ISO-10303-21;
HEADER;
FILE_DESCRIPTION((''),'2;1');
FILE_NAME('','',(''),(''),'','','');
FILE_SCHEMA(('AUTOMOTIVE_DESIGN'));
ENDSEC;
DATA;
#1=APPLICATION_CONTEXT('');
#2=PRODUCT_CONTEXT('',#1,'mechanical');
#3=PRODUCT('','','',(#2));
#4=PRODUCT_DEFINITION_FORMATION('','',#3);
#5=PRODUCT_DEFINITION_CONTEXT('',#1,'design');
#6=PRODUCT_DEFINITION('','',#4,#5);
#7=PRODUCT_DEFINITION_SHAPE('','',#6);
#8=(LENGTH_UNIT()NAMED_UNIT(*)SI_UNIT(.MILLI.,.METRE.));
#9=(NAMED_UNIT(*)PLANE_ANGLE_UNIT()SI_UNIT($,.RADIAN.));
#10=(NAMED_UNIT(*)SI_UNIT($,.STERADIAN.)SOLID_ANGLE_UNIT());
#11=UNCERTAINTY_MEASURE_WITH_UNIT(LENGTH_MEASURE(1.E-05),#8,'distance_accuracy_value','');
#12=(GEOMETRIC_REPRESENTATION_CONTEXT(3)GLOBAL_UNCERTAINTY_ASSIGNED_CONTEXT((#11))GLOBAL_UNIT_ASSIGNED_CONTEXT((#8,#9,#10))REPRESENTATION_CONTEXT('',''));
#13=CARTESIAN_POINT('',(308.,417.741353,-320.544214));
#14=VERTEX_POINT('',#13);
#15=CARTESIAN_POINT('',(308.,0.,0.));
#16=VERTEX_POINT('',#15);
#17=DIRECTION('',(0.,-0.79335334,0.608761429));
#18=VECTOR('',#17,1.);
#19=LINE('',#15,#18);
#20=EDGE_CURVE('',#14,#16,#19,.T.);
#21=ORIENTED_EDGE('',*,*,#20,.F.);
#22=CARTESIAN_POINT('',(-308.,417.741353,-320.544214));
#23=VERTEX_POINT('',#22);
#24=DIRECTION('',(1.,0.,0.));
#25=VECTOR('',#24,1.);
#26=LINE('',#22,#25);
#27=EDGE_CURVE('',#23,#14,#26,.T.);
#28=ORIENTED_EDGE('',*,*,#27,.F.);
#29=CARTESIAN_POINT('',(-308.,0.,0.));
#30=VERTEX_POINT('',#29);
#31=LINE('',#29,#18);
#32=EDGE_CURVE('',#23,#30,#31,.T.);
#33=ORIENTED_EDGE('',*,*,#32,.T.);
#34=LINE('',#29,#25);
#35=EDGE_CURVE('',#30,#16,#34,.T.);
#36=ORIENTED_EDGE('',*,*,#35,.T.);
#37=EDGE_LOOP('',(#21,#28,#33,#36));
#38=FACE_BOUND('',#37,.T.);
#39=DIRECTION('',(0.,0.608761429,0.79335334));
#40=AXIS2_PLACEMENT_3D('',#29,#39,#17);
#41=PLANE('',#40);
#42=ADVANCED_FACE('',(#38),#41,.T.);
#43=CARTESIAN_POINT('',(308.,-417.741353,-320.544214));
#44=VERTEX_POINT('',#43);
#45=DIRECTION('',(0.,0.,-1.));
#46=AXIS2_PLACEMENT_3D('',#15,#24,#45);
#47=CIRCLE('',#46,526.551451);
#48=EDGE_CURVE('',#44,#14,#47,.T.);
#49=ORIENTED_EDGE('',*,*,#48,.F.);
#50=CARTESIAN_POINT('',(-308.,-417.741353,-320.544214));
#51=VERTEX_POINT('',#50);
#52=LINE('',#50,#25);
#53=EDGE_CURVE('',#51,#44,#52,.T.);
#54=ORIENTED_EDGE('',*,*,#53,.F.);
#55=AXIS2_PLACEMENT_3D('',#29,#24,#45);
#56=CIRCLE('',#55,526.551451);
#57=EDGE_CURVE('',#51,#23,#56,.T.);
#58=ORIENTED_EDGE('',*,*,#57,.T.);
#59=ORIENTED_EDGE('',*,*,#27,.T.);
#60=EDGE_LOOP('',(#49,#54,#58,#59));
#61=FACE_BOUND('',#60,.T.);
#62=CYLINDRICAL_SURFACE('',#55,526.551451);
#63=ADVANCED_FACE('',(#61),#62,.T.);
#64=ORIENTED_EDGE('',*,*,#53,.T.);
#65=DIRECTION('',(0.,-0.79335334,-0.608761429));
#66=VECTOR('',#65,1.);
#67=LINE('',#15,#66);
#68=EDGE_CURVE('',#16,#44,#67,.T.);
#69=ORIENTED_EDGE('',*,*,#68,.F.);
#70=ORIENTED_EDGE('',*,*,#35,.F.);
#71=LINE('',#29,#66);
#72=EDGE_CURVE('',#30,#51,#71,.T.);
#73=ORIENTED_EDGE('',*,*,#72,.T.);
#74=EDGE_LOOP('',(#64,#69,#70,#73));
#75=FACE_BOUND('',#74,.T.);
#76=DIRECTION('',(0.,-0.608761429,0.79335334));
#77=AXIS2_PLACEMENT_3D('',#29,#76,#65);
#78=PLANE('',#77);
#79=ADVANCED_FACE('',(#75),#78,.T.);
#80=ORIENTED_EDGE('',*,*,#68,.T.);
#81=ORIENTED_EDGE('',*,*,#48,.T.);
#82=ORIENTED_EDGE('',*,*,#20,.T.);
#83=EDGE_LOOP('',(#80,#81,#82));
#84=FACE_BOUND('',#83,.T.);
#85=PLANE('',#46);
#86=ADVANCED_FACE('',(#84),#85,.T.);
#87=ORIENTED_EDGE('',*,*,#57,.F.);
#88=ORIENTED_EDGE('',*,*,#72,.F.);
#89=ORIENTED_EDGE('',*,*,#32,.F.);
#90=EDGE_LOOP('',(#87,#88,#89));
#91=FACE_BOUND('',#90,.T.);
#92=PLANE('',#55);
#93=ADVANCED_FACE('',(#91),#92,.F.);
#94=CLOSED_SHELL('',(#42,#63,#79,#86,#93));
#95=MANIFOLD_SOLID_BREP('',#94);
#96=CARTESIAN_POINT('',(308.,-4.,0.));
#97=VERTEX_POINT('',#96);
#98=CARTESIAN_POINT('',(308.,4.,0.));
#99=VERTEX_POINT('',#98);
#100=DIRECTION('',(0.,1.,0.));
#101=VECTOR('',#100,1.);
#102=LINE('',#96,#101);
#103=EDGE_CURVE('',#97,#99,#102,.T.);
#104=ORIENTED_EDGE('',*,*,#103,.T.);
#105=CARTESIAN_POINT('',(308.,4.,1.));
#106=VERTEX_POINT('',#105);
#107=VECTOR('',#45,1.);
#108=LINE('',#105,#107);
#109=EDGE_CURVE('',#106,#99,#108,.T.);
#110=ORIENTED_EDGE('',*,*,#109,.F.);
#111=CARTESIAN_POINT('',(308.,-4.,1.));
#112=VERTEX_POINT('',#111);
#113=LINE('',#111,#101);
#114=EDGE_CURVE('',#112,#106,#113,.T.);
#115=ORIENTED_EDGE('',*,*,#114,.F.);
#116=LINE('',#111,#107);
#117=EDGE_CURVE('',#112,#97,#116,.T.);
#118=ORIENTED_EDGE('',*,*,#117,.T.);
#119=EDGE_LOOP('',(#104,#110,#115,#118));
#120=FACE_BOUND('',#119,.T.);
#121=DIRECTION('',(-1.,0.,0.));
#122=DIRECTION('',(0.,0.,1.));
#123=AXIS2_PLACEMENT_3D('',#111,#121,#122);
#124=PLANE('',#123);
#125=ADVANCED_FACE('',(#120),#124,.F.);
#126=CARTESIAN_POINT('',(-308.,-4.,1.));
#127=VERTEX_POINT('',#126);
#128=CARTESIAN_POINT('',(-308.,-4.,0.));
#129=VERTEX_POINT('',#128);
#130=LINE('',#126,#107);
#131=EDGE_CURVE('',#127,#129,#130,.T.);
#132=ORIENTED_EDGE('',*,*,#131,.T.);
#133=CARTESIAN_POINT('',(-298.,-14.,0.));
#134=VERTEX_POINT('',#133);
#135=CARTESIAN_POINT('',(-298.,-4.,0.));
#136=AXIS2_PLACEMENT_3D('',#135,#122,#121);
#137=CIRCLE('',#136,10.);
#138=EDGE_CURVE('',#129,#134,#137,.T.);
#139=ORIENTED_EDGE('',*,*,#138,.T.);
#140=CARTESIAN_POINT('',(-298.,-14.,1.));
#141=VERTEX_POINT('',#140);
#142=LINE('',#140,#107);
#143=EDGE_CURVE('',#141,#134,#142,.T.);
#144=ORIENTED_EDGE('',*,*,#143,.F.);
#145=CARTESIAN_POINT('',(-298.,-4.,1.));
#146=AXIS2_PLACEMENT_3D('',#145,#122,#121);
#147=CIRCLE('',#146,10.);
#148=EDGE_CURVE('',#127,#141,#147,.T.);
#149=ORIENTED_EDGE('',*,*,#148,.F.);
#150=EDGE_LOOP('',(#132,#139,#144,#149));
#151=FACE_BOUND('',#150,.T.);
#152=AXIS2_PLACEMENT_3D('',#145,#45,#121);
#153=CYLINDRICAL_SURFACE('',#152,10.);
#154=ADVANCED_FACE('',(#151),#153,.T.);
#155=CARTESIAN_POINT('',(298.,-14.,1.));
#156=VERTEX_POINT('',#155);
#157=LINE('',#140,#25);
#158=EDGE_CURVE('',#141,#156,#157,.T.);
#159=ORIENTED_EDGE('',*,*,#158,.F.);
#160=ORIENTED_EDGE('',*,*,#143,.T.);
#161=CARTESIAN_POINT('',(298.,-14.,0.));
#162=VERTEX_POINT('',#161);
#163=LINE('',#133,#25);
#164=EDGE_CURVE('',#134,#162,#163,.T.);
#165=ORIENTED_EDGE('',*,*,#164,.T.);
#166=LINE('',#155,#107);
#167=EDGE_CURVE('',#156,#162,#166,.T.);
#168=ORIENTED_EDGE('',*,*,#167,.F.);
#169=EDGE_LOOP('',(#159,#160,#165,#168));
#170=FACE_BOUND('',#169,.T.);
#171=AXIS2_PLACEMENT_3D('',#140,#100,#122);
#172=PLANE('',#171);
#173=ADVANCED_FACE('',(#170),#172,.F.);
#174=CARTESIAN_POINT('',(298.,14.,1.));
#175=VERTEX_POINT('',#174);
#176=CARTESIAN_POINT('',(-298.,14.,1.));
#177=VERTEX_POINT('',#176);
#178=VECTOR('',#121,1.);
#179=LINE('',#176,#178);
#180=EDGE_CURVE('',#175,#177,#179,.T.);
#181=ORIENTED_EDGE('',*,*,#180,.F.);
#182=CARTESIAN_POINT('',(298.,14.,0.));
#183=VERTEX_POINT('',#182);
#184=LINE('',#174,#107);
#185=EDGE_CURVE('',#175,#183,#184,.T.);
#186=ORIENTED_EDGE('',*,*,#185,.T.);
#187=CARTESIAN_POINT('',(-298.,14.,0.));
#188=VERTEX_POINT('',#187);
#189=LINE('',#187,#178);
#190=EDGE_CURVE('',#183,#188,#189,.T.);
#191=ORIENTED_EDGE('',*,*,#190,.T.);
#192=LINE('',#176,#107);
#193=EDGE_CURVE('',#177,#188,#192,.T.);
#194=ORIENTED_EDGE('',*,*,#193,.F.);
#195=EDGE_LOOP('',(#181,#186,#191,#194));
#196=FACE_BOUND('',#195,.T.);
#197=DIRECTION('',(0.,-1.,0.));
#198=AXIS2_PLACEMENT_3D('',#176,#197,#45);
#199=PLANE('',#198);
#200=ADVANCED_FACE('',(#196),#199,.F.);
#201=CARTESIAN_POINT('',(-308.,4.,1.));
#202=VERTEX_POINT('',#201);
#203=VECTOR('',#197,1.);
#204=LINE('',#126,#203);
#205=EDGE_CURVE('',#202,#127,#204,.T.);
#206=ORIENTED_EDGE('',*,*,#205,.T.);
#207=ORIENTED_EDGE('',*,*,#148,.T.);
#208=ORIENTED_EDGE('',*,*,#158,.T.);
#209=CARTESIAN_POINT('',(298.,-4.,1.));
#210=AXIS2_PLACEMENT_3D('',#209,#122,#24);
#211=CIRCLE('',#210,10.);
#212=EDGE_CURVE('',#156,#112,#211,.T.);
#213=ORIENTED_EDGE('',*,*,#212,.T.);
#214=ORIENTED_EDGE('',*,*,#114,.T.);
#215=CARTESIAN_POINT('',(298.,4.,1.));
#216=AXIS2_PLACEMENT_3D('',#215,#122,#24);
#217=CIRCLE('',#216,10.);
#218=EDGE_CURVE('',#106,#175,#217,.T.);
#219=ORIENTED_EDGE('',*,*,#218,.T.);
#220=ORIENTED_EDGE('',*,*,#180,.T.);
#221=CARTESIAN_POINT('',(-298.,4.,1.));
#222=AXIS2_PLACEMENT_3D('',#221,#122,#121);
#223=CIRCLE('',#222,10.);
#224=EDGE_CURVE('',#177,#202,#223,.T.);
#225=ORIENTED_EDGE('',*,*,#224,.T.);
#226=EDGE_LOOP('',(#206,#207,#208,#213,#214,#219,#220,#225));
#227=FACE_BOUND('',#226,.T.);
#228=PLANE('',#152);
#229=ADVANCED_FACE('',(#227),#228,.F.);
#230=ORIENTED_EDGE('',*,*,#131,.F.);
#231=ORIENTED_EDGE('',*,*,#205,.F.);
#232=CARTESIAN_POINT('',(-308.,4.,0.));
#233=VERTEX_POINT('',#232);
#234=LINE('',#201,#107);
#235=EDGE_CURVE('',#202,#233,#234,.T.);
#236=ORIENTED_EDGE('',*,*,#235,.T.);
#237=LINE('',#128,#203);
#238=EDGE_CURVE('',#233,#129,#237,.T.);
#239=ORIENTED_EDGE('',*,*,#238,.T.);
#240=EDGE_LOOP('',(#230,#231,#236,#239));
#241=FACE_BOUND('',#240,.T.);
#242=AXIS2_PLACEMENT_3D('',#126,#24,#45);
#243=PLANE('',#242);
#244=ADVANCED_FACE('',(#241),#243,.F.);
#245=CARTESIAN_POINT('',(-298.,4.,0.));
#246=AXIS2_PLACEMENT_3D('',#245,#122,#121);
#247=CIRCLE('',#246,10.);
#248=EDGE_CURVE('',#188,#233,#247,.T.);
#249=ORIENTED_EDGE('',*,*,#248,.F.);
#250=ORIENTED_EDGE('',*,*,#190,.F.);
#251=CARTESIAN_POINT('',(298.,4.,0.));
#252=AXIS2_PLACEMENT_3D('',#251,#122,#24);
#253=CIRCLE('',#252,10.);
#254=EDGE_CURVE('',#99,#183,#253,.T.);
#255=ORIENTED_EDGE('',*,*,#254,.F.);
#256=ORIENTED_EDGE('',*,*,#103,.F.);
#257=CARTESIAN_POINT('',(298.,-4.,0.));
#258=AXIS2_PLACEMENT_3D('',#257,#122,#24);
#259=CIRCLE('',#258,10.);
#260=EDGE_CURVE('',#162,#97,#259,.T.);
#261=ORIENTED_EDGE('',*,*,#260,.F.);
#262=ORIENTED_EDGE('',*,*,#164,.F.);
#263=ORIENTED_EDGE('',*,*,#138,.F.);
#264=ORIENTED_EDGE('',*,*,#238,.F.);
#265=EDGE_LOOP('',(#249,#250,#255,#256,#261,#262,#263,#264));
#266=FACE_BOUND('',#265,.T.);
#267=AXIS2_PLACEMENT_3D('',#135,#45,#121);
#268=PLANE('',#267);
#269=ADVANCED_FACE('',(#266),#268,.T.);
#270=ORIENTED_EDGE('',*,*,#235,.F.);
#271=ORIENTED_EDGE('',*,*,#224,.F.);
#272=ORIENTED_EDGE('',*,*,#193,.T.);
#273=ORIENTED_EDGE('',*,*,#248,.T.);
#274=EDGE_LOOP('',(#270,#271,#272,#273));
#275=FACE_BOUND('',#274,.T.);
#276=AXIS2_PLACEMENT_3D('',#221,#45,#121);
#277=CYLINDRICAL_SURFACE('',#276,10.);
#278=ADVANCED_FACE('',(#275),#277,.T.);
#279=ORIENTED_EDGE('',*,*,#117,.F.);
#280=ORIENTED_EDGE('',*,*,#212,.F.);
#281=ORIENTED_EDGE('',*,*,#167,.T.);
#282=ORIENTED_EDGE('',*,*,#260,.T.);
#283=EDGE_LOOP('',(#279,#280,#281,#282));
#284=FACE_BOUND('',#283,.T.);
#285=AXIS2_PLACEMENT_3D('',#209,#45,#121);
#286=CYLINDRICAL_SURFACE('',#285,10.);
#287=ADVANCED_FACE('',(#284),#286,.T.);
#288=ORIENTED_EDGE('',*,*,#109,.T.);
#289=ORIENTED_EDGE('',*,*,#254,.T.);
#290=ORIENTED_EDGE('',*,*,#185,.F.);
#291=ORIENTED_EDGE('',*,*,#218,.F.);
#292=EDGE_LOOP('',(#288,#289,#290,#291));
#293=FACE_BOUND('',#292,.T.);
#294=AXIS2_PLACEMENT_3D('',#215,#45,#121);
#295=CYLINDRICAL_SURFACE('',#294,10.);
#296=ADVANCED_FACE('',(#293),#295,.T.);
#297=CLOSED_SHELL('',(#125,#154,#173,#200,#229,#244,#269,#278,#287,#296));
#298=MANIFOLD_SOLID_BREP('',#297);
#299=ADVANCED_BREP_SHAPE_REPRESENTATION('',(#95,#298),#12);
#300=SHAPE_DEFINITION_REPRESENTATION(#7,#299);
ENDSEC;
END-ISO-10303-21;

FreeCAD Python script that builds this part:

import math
import FreeCAD as App
import Part
import Sketcher

V = App.Vector
Q = App.Units.Quantity

doc = App.newDocument("Part")
body = doc.addObject("PartDesign::Body", "Body")

sketch1 = body.newObject("Sketcher::SketchObject", "Sketch")
sketch1.AttachmentSupport = (doc.getObject("XY_Plane"), [""])
sketch1.MapMode = "FlatFace"
sketch1.addGeometry(Part.LineSegment(V(-298, -14, 0), V(298, -14, 0)), False)
sketch1.addGeometry(Part.ArcOfCircle(Part.Circle(V(298, -4, 0), V(0, 0, 1), 10), math.radians(-90), math.radians(0)), False)
sketch1.addGeometry(Part.LineSegment(V(308, -4, 0), V(308, 4, 0)), False)
sketch1.addGeometry(Part.ArcOfCircle(Part.Circle(V(298, 4, 0), V(0, 0, 1), 10), math.radians(0), math.radians(90)), False)
sketch1.addGeometry(Part.LineSegment(V(298, 14, 0), V(-298, 14, 0)), False)
sketch1.addGeometry(Part.ArcOfCircle(Part.Circle(V(-298, 4, 0), V(0, 0, 1), 10), math.radians(90), math.radians(180)), False)
sketch1.addGeometry(Part.LineSegment(V(-308, 4, 0), V(-308, -4, 0)), False)
sketch1.addGeometry(Part.ArcOfCircle(Part.Circle(V(-298, -4, 0), V(0, 0, 1), 10), math.radians(180), math.radians(270)), False)
sketch1.addConstraint(Sketcher.Constraint("Tangent", 0, 2, 1, 1))
sketch1.addConstraint(Sketcher.Constraint("Tangent", 1, 2, 2, 1))
sketch1.addConstraint(Sketcher.Constraint("Tangent", 2, 2, 3, 1))
sketch1.addConstraint(Sketcher.Constraint("Tangent", 3, 2, 4, 1))
sketch1.addConstraint(Sketcher.Constraint("Tangent", 4, 2, 5, 1))
sketch1.addConstraint(Sketcher.Constraint("Tangent", 5, 2, 6, 1))
sketch1.addConstraint(Sketcher.Constraint("Tangent", 6, 2, 7, 1))
sketch1.addConstraint(Sketcher.Constraint("Tangent", 7, 2, 0, 1))
sketch1.addConstraint(Sketcher.Constraint("Horizontal", 0))
sketch1.addConstraint(Sketcher.Constraint("Vertical", 2))
sketch1.addConstraint(Sketcher.Constraint("Horizontal", 4))
sketch1.addConstraint(Sketcher.Constraint("Vertical", 6))
sketch1.addConstraint(Sketcher.Constraint("Equal", 1, 3))
sketch1.addConstraint(Sketcher.Constraint("Equal", 3, 5))
sketch1.addConstraint(Sketcher.Constraint("Equal", 5, 7))
sketch1.addConstraint(Sketcher.Constraint("Symmetric", 1, 3, 5, 3, -1, 1))
sketch1.addConstraint(Sketcher.Constraint("Radius", 1, Q("10 mm")))
sketch1.addConstraint(Sketcher.Constraint("DistanceX", 0, 1, 0, 2, Q("596 mm")))
sketch1.addConstraint(Sketcher.Constraint("DistanceY", 2, 1, 2, 2, Q("8 mm")))
pad1 = body.newObject("PartDesign::Pad", "Pad")
pad1.Profile = sketch1
pad1.Length = 1
body2 = doc.addObject("PartDesign::Body", "Body001")

sketch2 = body2.newObject("Sketcher::SketchObject", "Sketch001")
sketch2.AttachmentSupport = (doc.getObject("YZ_Plane001"), [""])
sketch2.MapMode = "FlatFace"
sketch2.AttachmentOffset = App.Placement(V(0, 0, 308), App.Rotation())
sketch2.addGeometry(Part.LineSegment(V(417.741353, -320.544214, 0), V(0, 0, 0)), False)
sketch2.addGeometry(Part.LineSegment(V(0, 0, 0), V(-417.741353, -320.544214, 0)), False)
sketch2.addGeometry(Part.ArcOfCircle(Part.Circle(V(0, 0, 0), V(0, 0, 1), 526.551451), math.radians(-142.5), math.radians(-37.5)), False)
sketch2.addConstraint(Sketcher.Constraint("Coincident", 0, 2, 1, 1))
sketch2.addConstraint(Sketcher.Constraint("Coincident", 1, 2, 2, 1))
sketch2.addConstraint(Sketcher.Constraint("Coincident", 2, 2, 0, 1))
sketch2.addConstraint(Sketcher.Constraint("Coincident", 2, 3, -1, 1))
sketch2.addConstraint(Sketcher.Constraint("Coincident", 0, 2, -1, 1))
sketch2.addConstraint(Sketcher.Constraint("Horizontal", 1, 2, 2, 2))
sketch2.addConstraint(Sketcher.Constraint("Angle", 0, Q("142.5 deg")))
sketch2.addConstraint(Sketcher.Constraint("Radius", 2, Q("526.551451 mm")))
pad2 = body2.newObject("PartDesign::Pad", "Pad001")
pad2.Profile = sketch2
pad2.Length = 616
pad2.Reversed = True

doc.recompute()
